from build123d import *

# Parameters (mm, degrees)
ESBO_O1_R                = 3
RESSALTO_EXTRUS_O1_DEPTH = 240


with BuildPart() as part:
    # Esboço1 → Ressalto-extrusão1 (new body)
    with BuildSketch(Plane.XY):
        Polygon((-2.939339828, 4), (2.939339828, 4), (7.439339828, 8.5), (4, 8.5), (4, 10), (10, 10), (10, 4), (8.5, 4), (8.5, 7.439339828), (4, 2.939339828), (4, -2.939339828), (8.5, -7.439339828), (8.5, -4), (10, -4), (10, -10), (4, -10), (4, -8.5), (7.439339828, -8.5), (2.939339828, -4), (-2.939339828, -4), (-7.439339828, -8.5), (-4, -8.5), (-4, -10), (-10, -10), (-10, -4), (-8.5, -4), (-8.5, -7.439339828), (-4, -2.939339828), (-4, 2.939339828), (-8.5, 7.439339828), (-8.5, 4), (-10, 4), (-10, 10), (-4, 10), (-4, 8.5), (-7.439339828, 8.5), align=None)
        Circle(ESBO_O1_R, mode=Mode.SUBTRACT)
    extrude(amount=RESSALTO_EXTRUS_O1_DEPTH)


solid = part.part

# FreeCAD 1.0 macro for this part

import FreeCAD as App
import Part
import Sketcher

V = App.Vector
Q = App.Units.Quantity


def add_polygon(sketch, points):
    """Adds a closed chain of lines whose ends are joined by coincident constraints."""
    first, n = sketch.GeometryCount, len(points)
    for a, b in zip(points, points[1:] + points[:1]):
        sketch.addGeometry(Part.LineSegment(App.Vector(*a, 0), App.Vector(*b, 0)), False)
    for i in range(n):
        sketch.addConstraint(Sketcher.Constraint("Coincident", first + i, 2, first + (i + 1) % n, 1))

doc = App.newDocument("Part")
body = doc.addObject("PartDesign::Body", "Body")

sketch1 = body.newObject("Sketcher::SketchObject", "Sketch")
sketch1.AttachmentSupport = (doc.getObject("XY_Plane"), [""])
sketch1.MapMode = "FlatFace"
add_polygon(sketch1, [(2.9, 4), (-2.9, 4), (-7.4, 8.5), (-4, 8.5), (-4, 10), (-10, 10), (-10, 4), (-8.5, 4), (-8.5, 7.4), (-4, 2.9), (-4, -2.9), (-8.5, -7.4), (-8.5, -4), (-10, -4), (-10, -10), (-4, -10), (-4, -8.5), (-7.4, -8.5), (-2.9, -4), (2.9, -4), (7.4, -8.5), (4, -8.5), (4, -10), (10, -10), (10, -4), (8.5, -4), (8.5, -7.4), (4, -2.9), (4, 2.9), (8.5, 7.4), (8.5, 4), (10, 4), (10, 10), (4, 10), (4, 8.5), (7.4, 8.5)])
sketch1.addGeometry(Part.Circle(V(0, 0, 0), V(0, 0, 1), 3), False)
sketch1.addConstraint([
    Sketcher.Constraint("Horizontal", 0),
    Sketcher.Constraint("Horizontal", 2),
    Sketcher.Constraint("Vertical", 3),
    Sketcher.Constraint("Horizontal", 4),
    Sketcher.Constraint("Vertical", 5),
    Sketcher.Constraint("Horizontal", 6),
    Sketcher.Constraint("Vertical", 7),
    Sketcher.Constraint("Vertical", 9),
    Sketcher.Constraint("Vertical", 11),
    Sketcher.Constraint("Horizontal", 12),
    Sketcher.Constraint("Vertical", 13),
    Sketcher.Constraint("Horizontal", 14),
    Sketcher.Constraint("Vertical", 15),
    Sketcher.Constraint("Horizontal", 16),
    Sketcher.Constraint("Horizontal", 18),
    Sketcher.Constraint("Horizontal", 20),
    Sketcher.Constraint("Vertical", 21),
    Sketcher.Constraint("Horizontal", 22),
    Sketcher.Constraint("Vertical", 23),
    Sketcher.Constraint("Horizontal", 24),
    Sketcher.Constraint("Vertical", 25),
    Sketcher.Constraint("Vertical", 27),
    Sketcher.Constraint("Vertical", 29),
    Sketcher.Constraint("Horizontal", 30),
    Sketcher.Constraint("Vertical", 31),
    Sketcher.Constraint("Horizontal", 32),
    Sketcher.Constraint("Vertical", 33),
    Sketcher.Constraint("Horizontal", 34),
    Sketcher.Constraint("Coincident", 36, 3, -1, 1),
    Sketcher.Constraint("Symmetric", 0, 2, 18, 2, -1, 1),
    Sketcher.Constraint("Symmetric", 1, 2, 19, 2, -1, 1),
    Sketcher.Constraint("Symmetric", 3, 2, 21, 2, -1, 1),
    Sketcher.Constraint("Symmetric", 5, 2, 23, 2, -1, 1),
    Sketcher.Constraint("Symmetric", 7, 2, 25, 2, -1, 1),
    Sketcher.Constraint("Symmetric", 8, 2, 26, 2, -1, 1),
    Sketcher.Constraint("Symmetric", 10, 2, 28, 2, -1, 1),
    Sketcher.Constraint("Symmetric", 12, 2, 30, 2, -1, 1),
    Sketcher.Constraint("Symmetric", 14, 2, 32, 2, -1, 1),
    Sketcher.Constraint("Symmetric", 16, 2, 34, 2, -1, 1),
    Sketcher.Constraint("Symmetric", 16, 2, 19, 2, -2),
    Sketcher.Constraint("Symmetric", 14, 2, 21, 2, -2),
    Sketcher.Constraint("Symmetric", 12, 2, 23, 2, -2),
    Sketcher.Constraint("Symmetric", 10, 2, 25, 2, -2),
    Sketcher.Constraint("Parallel", 1, 8),
    Sketcher.Constraint("Perpendicular", 8, 10),
    Sketcher.Constraint("Parallel", 10, 17),
    Sketcher.Constraint("Perpendicular", 26, 28),
    Sketcher.Constraint("Parallel", 28, 35),
    Sketcher.Constraint("Horizontal", 0, 2, 5, 2),
    Sketcher.Constraint("Horizontal", 9, 2, 26, 2),
    Sketcher.Constraint("Vertical", 3, 2, 8, 2),
    Sketcher.Constraint("Equal", 30, 3),
    Sketcher.Constraint("Equal", 32, 5),
    Sketcher.Constraint("Equal", 34, 7),
    Sketcher.Constraint("Equal", 18, 9),
    Sketcher.Constraint("Diameter", 36, Q("6 mm")),
    Sketcher.Constraint("DistanceX", 4, 2, 4, 1, Q("6 mm")),
    Sketcher.Constraint("DistanceX", 6, 1, 6, 2, Q("1.5 mm")),
    Sketcher.Constraint("DistanceY", -1, 1, 0, 2, Q("4 mm")),
    Sketcher.Constraint("DistanceX", 0, 2, 0, 1, Q("5.87868 mm")),
])
pad1 = body.newObject("PartDesign::Pad", "Pad")
pad1.Profile = sketch1
pad1.Length = 240

doc.recompute()
